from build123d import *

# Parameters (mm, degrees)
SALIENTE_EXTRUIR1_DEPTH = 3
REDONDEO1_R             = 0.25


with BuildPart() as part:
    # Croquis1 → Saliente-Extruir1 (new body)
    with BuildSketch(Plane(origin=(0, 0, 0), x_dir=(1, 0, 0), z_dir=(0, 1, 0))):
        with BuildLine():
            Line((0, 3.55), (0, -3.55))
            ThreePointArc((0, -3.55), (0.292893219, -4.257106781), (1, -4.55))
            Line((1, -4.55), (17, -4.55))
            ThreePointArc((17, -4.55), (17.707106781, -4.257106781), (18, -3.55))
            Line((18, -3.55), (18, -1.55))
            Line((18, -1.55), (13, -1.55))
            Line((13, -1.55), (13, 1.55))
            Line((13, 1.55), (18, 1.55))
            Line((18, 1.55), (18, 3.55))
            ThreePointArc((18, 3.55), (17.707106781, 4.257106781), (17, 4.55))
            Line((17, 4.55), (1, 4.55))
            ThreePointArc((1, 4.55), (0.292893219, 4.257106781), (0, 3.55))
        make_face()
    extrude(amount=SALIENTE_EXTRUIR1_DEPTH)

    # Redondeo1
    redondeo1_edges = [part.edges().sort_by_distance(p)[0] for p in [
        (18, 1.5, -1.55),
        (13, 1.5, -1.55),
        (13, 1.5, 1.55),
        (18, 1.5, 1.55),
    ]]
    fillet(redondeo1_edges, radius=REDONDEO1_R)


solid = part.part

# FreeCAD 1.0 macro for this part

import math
import FreeCAD as App
import Part
import Sketcher

V = App.Vector
Q = App.Units.Quantity


def edges_at(feature, points):
    """Names of the edges that pass closest to the given points."""
    edges = feature.Shape.Edges
    near = lambda p: min(range(len(edges)), key=lambda i: edges[i].distToShape(Part.Vertex(*p))[0])
    return sorted({f"Edge{near(p) + 1}" for p in points})

doc = App.newDocument("Part")
body = doc.addObject("PartDesign::Body", "Body")

# Sketch on XZ plane
sketch1 = body.newObject("Sketcher::SketchObject", "Sketch")
sketch1.AttachmentSupport = (doc.getObject("XZ_Plane"), [""])
sketch1.MapMode = "FlatFace"
sketch1.addGeometry(Part.LineSegment(V(0, -3.5, 0), V(0, 3.5, 0)), False)
sketch1.addGeometry(Part.ArcOfCircle(Part.Circle(V(1, 3.5, 0), V(0, 0, 1), 1), math.radians(90), math.radians(180)), False)
sketch1.addGeometry(Part.LineSegment(V(1, 4.5, 0), V(17, 4.5, 0)), False)
sketch1.addGeometry(Part.ArcOfCircle(Part.Circle(V(17, 3.5, 0), V(0, 0, 1), 1), math.radians(0), math.radians(90)), False)
sketch1.addGeometry(Part.LineSegment(V(18, 3.5, 0), V(18, 1.6, 0)), False)
sketch1.addGeometry(Part.LineSegment(V(18, 1.6, 0), V(13, 1.6, 0)), False)
sketch1.addGeometry(Part.LineSegment(V(13, 1.6, 0), V(13, -1.6, 0)), False)
sketch1.addGeometry(Part.LineSegment(V(13, -1.6, 0), V(18, -1.6, 0)), False)
sketch1.addGeometry(Part.LineSegment(V(18, -1.6, 0), V(18, -3.5, 0)), False)
sketch1.addGeometry(Part.ArcOfCircle(Part.Circle(V(17, -3.5, 0), V(0, 0, 1), 1), math.radians(-90), math.radians(0)), False)
sketch1.addGeometry(Part.LineSegment(V(17, -4.5, 0), V(1, -4.5, 0)), False)
sketch1.addGeometry(Part.ArcOfCircle(Part.Circle(V(1, -3.5, 0), V(0, 0, 1), 1), math.radians(-180), math.radians(-90)), False)
sketch1.addConstraint(Sketcher.Constraint("Tangent", 0, 2, 1, 2))
sketch1.addConstraint(Sketcher.Constraint("Tangent", 1, 1, 2, 1))
sketch1.addConstraint(Sketcher.Constraint("Tangent", 2, 2, 3, 2))
sketch1.addConstraint(Sketcher.Constraint("Tangent", 3, 1, 4, 1))
sketch1.addConstraint(Sketcher.Constraint("Coincident", 4, 2, 5, 1))
sketch1.addConstraint(Sketcher.Constraint("Coincident", 5, 2, 6, 1))
sketch1.addConstraint(Sketcher.Constraint("Coincident", 6, 2, 7, 1))
sketch1.addConstraint(Sketcher.Constraint("Coincident", 7, 2, 8, 1))
sketch1.addConstraint(Sketcher.Constraint("Tangent", 8, 2, 9, 2))
sketch1.addConstraint(Sketcher.Constraint("Tangent", 9, 1, 10, 1))
sketch1.addConstraint(Sketcher.Constraint("Tangent", 10, 2, 11, 2))
sketch1.addConstraint(Sketcher.Constraint("Tangent", 11, 1, 0, 1))
sketch1.addConstraint(Sketcher.Constraint("Vertical", 0))
sketch1.addConstraint(Sketcher.Constraint("Horizontal", 2))
sketch1.addConstraint(Sketcher.Constraint("Vertical", 4))
sketch1.addConstraint(Sketcher.Constraint("Horizontal", 5))
sketch1.addConstraint(Sketcher.Constraint("Vertical", 6))
sketch1.addConstraint(Sketcher.Constraint("Horizontal", 7))
sketch1.addConstraint(Sketcher.Constraint("Vertical", 8))
sketch1.addConstraint(Sketcher.Constraint("Horizontal", 10))
sketch1.addConstraint(Sketcher.Constraint("Equal", 1, 3))
sketch1.addConstraint(Sketcher.Constraint("Equal", 3, 9))
sketch1.addConstraint(Sketcher.Constraint("Equal", 9, 11))
sketch1.addConstraint(Sketcher.Constraint("Symmetric", 0, 2, 11, 1, -1, 1))
sketch1.addConstraint(Sketcher.Constraint("Symmetric", 4, 2, 7, 2, -1))
sketch1.addConstraint(Sketcher.Constraint("Radius", 1, Q("1 mm")))
sketch1.addConstraint(Sketcher.Constraint("DistanceX", 2, 1, 2, 2, Q("16 mm")))
sketch1.addConstraint(Sketcher.Constraint("DistanceX", 5, 2, 5, 1, Q("5 mm")))
sketch1.addConstraint(Sketcher.Constraint("DistanceY", 4, 2, 4, 1, Q("2 mm")))
sketch1.addConstraint(Sketcher.Constraint("DistanceY", 0, 1, 0, 2, Q("7.1 mm")))
pad1 = body.newObject("PartDesign::Pad", "Pad")
pad1.Profile = sketch1
pad1.Length = 3
pad1.Reversed = True
doc.recompute()

fillet = body.newObject("PartDesign::Fillet", "Fillet")
fillet.Base = (pad1, edges_at(pad1, [
    (18, 1.5, -1.55),
    (13, 1.5, -1.55),
    (13, 1.5, 1.55),
    (18, 1.5, 1.55),
]))
fillet.Radius = 0.25

doc.recompute()
